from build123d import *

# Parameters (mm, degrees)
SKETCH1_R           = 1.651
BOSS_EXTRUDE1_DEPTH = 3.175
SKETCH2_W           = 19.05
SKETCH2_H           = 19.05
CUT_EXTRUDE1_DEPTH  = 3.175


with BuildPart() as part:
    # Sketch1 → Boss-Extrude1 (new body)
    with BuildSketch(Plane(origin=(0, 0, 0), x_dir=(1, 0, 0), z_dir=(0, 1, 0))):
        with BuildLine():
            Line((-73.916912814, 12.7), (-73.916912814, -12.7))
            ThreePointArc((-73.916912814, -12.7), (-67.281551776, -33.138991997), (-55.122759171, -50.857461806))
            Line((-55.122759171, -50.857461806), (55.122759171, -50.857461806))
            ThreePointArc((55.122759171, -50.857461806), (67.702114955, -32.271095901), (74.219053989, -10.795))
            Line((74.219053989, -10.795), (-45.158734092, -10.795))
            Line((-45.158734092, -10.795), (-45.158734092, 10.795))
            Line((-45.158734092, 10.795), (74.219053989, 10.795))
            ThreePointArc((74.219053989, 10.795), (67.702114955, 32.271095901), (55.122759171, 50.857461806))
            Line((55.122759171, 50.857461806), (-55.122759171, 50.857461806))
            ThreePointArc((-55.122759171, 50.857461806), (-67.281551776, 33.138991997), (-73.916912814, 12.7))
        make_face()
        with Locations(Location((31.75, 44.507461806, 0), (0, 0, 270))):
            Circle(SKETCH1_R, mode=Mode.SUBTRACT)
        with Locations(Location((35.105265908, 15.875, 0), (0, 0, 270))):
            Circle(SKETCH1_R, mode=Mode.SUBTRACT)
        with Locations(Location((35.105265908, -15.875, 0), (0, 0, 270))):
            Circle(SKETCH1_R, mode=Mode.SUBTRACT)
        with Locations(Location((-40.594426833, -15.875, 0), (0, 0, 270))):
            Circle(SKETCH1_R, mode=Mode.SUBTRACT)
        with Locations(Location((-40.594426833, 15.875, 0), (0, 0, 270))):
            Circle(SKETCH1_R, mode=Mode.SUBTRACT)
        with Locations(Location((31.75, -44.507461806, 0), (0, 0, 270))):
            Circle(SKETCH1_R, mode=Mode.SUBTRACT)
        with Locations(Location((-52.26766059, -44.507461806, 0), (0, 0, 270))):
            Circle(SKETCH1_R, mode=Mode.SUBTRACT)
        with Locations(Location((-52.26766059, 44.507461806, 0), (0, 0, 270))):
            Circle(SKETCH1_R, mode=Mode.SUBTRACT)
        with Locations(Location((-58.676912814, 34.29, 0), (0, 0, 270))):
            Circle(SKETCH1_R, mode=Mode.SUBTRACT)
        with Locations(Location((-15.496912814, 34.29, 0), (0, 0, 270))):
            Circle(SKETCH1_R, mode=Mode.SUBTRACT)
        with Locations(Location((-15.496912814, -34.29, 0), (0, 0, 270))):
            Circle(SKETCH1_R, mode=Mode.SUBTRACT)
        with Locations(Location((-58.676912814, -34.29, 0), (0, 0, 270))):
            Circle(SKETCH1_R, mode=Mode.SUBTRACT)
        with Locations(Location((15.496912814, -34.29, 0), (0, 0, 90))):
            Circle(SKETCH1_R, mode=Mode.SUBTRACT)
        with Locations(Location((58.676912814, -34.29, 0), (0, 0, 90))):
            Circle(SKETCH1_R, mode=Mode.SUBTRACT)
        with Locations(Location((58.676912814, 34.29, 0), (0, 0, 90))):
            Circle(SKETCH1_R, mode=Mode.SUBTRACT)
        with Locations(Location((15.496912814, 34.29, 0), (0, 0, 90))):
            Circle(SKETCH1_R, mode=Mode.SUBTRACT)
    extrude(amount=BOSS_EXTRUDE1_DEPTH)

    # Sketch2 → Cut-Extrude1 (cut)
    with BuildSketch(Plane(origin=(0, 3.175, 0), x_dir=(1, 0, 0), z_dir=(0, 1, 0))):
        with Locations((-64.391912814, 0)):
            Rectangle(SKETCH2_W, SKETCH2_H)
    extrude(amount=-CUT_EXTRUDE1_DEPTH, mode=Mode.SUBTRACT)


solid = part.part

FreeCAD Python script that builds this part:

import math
import FreeCAD as App
import Part
import Sketcher
Q = App.Units.Quantity


def add_polygon(sketch, points):
    """Adds a closed chain of lines whose ends are joined by coincident constraints."""
    first, n = sketch.GeometryCount, len(points)
    for a, b in zip(points, points[1:] + points[:1]):
        sketch.addGeometry(Part.LineSegment(App.Vector(*a, 0), App.Vector(*b, 0)), False)
    for i in range(n):
        sketch.addConstraint(Sketcher.Constraint("Coincident", first + i, 2, first + (i + 1) % n, 1))

doc = App.newDocument("Part")
body = doc.addObject("PartDesign::Body", "Body")

sketch1 = doc.addObject("Sketcher::SketchObject", "Sketch")
body.addObject(sketch1)
sketch1.AttachmentSupport = (doc.XZ_Plane, [""])
sketch1.MapMode = "FlatFace"
sketch1.addGeometry([
    Part.LineSegment(App.Vector(-73.9, -12.7, 0), App.Vector(-73.9, 12.7, 0)),
    Part.ArcOfCircle(Part.Circle(App.Vector(0, 0, 0), App.Vector(0, 0, 1), 75), math.radians(137), math.radians(170)),
    Part.LineSegment(App.Vector(-55.1, 50.9, 0), App.Vector(55.1, 50.9, 0)),
    Part.ArcOfCircle(Part.Circle(App.Vector(0, 0, 0), App.Vector(0, 0, 1), 75), math.radians(8), math.radians(43)),
    Part.LineSegment(App.Vector(74.2, 10.8, 0), App.Vector(-45.2, 10.8, 0)),
    Part.LineSegment(App.Vector(-45.2, 10.8, 0), App.Vector(-45.2, -10.8, 0)),
    Part.LineSegment(App.Vector(-45.2, -10.8, 0), App.Vector(74.2, -10.8, 0)),
    Part.ArcOfCircle(Part.Circle(App.Vector(0, 0, 0), App.Vector(0, 0, 1), 75), math.radians(-43), math.radians(-8)),
    Part.LineSegment(App.Vector(55.1, -50.9, 0), App.Vector(-55.1, -50.9, 0)),
    Part.ArcOfCircle(Part.Circle(App.Vector(0, 0, 0), App.Vector(0, 0, 1), 75), math.radians(-170), math.radians(-137)),
    Part.Circle(App.Vector(-52.3, 44.5, 0), App.Vector(0, 0, 1), 1.7),
    Part.Circle(App.Vector(-58.7, 34.3, 0), App.Vector(0, 0, 1), 1.7),
    Part.Circle(App.Vector(-15.5, 34.3, 0), App.Vector(0, 0, 1), 1.7),
    Part.Circle(App.Vector(-40.6, 15.9, 0), App.Vector(0, 0, 1), 1.7),
    Part.Circle(App.Vector(15.5, 34.3, 0), App.Vector(0, 0, 1), 1.7),
    Part.Circle(App.Vector(31.8, 44.5, 0), App.Vector(0, 0, 1), 1.7),
    Part.Circle(App.Vector(58.7, 34.3, 0), App.Vector(0, 0, 1), 1.7),
    Part.Circle(App.Vector(35.1, 15.9, 0), App.Vector(0, 0, 1), 1.7),
    Part.Circle(App.Vector(-40.6, -15.9, 0), App.Vector(0, 0, 1), 1.7),
    Part.Circle(App.Vector(-58.7, -34.3, 0), App.Vector(0, 0, 1), 1.7),
    Part.Circle(App.Vector(-52.3, -44.5, 0), App.Vector(0, 0, 1), 1.7),
    Part.Circle(App.Vector(-15.5, -34.3, 0), App.Vector(0, 0, 1), 1.7),
    Part.Circle(App.Vector(35.1, -15.9, 0), App.Vector(0, 0, 1), 1.7),
    Part.Circle(App.Vector(15.5, -34.3, 0), App.Vector(0, 0, 1), 1.7),
    Part.Circle(App.Vector(58.7, -34.3, 0), App.Vector(0, 0, 1), 1.7),
    Part.Circle(App.Vector(31.8, -44.5, 0), App.Vector(0, 0, 1), 1.7),
], False)
sketch1.addConstraint([
    Sketcher.Constraint("Coincident", 0, 2, 1, 2),
    Sketcher.Constraint("Coincident", 1, 1, 2, 1),
    Sketcher.Constraint("Coincident", 2, 2, 3, 2),
    Sketcher.Constraint("Coincident", 3, 1, 4, 1),
    Sketcher.Constraint("Coincident", 4, 2, 5, 1),
    Sketcher.Constraint("Coincident", 5, 2, 6, 1),
    Sketcher.Constraint("Coincident", 6, 2, 7, 2),
    Sketcher.Constraint("Coincident", 7, 1, 8, 1),
    Sketcher.Constraint("Coincident", 8, 2, 9, 2),
    Sketcher.Constraint("Coincident", 9, 1, 0, 1),
    Sketcher.Constraint("Vertical", 0),
    Sketcher.Constraint("Horizontal", 2),
    Sketcher.Constraint("Horizontal", 4),
    Sketcher.Constraint("Vertical", 5),
    Sketcher.Constraint("Horizontal", 6),
    Sketcher.Constraint("Horizontal", 8),
    Sketcher.Constraint("Coincident", 1, 3, -1, 1),
    Sketcher.Constraint("Coincident", 3, 3, -1, 1),
    Sketcher.Constraint("Coincident", 7, 3, -1, 1),
    Sketcher.Constraint("Coincident", 9, 3, -1, 1),
    Sketcher.Constraint("Equal", 1, 3),
    Sketcher.Constraint("Equal", 3, 7),
    Sketcher.Constraint("Equal", 7, 9),
    Sketcher.Constraint("Equal", 10, 11),
    Sketcher.Constraint("Equal", 11, 12),
    Sketcher.Constraint("Equal", 12, 13),
    Sketcher.Constraint("Equal", 13, 14),
    Sketcher.Constraint("Equal", 14, 15),
    Sketcher.Constraint("Equal", 15, 16),
    Sketcher.Constraint("Equal", 16, 17),
    Sketcher.Constraint("Equal", 17, 18),
    Sketcher.Constraint("Equal", 18, 19),
    Sketcher.Constraint("Equal", 19, 20),
    Sketcher.Constraint("Equal", 20, 21),
    Sketcher.Constraint("Equal", 21, 22),
    Sketcher.Constraint("Equal", 22, 23),
    Sketcher.Constraint("Equal", 23, 24),
    Sketcher.Constraint("Equal", 24, 25),
    Sketcher.Constraint("Symmetric", 16, 3, 19, 3, -1, 1),
    Sketcher.Constraint("Symmetric", 14, 3, 21, 3, -1, 1),
    Sketcher.Constraint("Symmetric", 12, 3, 23, 3, -1, 1),
    Sketcher.Constraint("Symmetric", 11, 3, 24, 3, -1, 1),
    Sketcher.Constraint("Symmetric", 12, 3, 14, 3, -2),
    Sketcher.Constraint("Symmetric", 11, 3, 16, 3, -2),
    Sketcher.Constraint("Symmetric", 13, 3, 18, 3, -1),
    Sketcher.Constraint("Symmetric", 10, 3, 20, 3, -1),
    Sketcher.Constraint("Symmetric", 17, 3, 22, 3, -1),
    Sketcher.Constraint("Symmetric", 15, 3, 25, 3, -1),
    Sketcher.Constraint("Horizontal", 11, 3, 12, 3),
    Sketcher.Constraint("Horizontal", 10, 3, 15, 3),
    Sketcher.Constraint("Horizontal", 13, 3, 17, 3),
    Sketcher.Constraint("Vertical", 3, 1, 6, 2),
    Sketcher.Constraint("Vertical", 2, 2, 7, 1),
    Sketcher.Constraint("Diameter", 10, Q("0.13 in")),
    Sketcher.Constraint("DistanceY", 0, 1, 0, 2, Q("1 in")),
    Sketcher.Constraint("DistanceY", 5, 2, 5, 1, Q("0.85 in")),
    Sketcher.Constraint("DistanceX", 14, 3, 16, 3, Q("1.7 in")),
    Sketcher.Constraint("DistanceX", 0, 2, 11, 3, Q("0.6 in")),
    Sketcher.Constraint("DistanceY", 3, 1, 17, 3, Q("0.2 in")),
    Sketcher.Constraint("DistanceY", -1, 1, 11, 3, Q("1.35 in")),
    Sketcher.Constraint("DistanceX", -1, 1, 15, 3, Q("1.25 in")),
    Sketcher.Constraint("Radius", 1, 75.0),
    Sketcher.Constraint("DistanceY", 10, 3, 1, 1, Q("0.25 in")),
    Sketcher.Constraint("DistanceX", 2, 1, 2, 2, 110.245518),
    Sketcher.Constraint("DistanceX", 4, 2, 4, 1, 119.377788),
    Sketcher.Constraint("DistanceX", 1, 1, 10, 3, 2.855099),
    Sketcher.Constraint("DistanceX", 17, 3, 3, 1, 39.113788),
    Sketcher.Constraint("DistanceX", 13, 3, -1, 1, 40.594427),
])
pad1 = doc.addObject("PartDesign::Pad", "Pad")
body.addObject(pad1)
pad1.Profile = sketch1
pad1.Length = Q("0.125 in")
pad1.Reversed = True

sketch2 = doc.addObject("Sketcher::SketchObject", "Sketch001")
body.addObject(sketch2)
sketch2.AttachmentSupport = (doc.XZ_Plane, [""])
sketch2.MapMode = "FlatFace"
sketch2.AttachmentOffset = App.Placement(App.Vector(0, 0, -0.125 * 25.4), App.Rotation())
add_polygon(sketch2, [(-74, -10), (-74, 10), (-55, 10), (-55, -10)])
sketch2.addConstraint([
    Sketcher.Constraint("Vertical", 0),
    Sketcher.Constraint("Horizontal", 1),
    Sketcher.Constraint("Vertical", 2),
    Sketcher.Constraint("Horizontal", 3),
    Sketcher.Constraint("Equal", 3, 0),
    Sketcher.Constraint("DistanceX", 1, 1, 1, 2, Q("0.75 in")),
    Sketcher.Constraint("DistanceY", -1, 1, 0, 2, Q("0.375 in")),
    Sketcher.Constraint("DistanceX", 0, 2, -1, 1, 73.916913),
])
pocket1 = doc.addObject("PartDesign::Pocket", "Pocket")
body.addObject(pocket1)
pocket1.Profile = sketch2
pocket1.Length = Q("0.125 in")
pocket1.Reversed = True

doc.recompute()
